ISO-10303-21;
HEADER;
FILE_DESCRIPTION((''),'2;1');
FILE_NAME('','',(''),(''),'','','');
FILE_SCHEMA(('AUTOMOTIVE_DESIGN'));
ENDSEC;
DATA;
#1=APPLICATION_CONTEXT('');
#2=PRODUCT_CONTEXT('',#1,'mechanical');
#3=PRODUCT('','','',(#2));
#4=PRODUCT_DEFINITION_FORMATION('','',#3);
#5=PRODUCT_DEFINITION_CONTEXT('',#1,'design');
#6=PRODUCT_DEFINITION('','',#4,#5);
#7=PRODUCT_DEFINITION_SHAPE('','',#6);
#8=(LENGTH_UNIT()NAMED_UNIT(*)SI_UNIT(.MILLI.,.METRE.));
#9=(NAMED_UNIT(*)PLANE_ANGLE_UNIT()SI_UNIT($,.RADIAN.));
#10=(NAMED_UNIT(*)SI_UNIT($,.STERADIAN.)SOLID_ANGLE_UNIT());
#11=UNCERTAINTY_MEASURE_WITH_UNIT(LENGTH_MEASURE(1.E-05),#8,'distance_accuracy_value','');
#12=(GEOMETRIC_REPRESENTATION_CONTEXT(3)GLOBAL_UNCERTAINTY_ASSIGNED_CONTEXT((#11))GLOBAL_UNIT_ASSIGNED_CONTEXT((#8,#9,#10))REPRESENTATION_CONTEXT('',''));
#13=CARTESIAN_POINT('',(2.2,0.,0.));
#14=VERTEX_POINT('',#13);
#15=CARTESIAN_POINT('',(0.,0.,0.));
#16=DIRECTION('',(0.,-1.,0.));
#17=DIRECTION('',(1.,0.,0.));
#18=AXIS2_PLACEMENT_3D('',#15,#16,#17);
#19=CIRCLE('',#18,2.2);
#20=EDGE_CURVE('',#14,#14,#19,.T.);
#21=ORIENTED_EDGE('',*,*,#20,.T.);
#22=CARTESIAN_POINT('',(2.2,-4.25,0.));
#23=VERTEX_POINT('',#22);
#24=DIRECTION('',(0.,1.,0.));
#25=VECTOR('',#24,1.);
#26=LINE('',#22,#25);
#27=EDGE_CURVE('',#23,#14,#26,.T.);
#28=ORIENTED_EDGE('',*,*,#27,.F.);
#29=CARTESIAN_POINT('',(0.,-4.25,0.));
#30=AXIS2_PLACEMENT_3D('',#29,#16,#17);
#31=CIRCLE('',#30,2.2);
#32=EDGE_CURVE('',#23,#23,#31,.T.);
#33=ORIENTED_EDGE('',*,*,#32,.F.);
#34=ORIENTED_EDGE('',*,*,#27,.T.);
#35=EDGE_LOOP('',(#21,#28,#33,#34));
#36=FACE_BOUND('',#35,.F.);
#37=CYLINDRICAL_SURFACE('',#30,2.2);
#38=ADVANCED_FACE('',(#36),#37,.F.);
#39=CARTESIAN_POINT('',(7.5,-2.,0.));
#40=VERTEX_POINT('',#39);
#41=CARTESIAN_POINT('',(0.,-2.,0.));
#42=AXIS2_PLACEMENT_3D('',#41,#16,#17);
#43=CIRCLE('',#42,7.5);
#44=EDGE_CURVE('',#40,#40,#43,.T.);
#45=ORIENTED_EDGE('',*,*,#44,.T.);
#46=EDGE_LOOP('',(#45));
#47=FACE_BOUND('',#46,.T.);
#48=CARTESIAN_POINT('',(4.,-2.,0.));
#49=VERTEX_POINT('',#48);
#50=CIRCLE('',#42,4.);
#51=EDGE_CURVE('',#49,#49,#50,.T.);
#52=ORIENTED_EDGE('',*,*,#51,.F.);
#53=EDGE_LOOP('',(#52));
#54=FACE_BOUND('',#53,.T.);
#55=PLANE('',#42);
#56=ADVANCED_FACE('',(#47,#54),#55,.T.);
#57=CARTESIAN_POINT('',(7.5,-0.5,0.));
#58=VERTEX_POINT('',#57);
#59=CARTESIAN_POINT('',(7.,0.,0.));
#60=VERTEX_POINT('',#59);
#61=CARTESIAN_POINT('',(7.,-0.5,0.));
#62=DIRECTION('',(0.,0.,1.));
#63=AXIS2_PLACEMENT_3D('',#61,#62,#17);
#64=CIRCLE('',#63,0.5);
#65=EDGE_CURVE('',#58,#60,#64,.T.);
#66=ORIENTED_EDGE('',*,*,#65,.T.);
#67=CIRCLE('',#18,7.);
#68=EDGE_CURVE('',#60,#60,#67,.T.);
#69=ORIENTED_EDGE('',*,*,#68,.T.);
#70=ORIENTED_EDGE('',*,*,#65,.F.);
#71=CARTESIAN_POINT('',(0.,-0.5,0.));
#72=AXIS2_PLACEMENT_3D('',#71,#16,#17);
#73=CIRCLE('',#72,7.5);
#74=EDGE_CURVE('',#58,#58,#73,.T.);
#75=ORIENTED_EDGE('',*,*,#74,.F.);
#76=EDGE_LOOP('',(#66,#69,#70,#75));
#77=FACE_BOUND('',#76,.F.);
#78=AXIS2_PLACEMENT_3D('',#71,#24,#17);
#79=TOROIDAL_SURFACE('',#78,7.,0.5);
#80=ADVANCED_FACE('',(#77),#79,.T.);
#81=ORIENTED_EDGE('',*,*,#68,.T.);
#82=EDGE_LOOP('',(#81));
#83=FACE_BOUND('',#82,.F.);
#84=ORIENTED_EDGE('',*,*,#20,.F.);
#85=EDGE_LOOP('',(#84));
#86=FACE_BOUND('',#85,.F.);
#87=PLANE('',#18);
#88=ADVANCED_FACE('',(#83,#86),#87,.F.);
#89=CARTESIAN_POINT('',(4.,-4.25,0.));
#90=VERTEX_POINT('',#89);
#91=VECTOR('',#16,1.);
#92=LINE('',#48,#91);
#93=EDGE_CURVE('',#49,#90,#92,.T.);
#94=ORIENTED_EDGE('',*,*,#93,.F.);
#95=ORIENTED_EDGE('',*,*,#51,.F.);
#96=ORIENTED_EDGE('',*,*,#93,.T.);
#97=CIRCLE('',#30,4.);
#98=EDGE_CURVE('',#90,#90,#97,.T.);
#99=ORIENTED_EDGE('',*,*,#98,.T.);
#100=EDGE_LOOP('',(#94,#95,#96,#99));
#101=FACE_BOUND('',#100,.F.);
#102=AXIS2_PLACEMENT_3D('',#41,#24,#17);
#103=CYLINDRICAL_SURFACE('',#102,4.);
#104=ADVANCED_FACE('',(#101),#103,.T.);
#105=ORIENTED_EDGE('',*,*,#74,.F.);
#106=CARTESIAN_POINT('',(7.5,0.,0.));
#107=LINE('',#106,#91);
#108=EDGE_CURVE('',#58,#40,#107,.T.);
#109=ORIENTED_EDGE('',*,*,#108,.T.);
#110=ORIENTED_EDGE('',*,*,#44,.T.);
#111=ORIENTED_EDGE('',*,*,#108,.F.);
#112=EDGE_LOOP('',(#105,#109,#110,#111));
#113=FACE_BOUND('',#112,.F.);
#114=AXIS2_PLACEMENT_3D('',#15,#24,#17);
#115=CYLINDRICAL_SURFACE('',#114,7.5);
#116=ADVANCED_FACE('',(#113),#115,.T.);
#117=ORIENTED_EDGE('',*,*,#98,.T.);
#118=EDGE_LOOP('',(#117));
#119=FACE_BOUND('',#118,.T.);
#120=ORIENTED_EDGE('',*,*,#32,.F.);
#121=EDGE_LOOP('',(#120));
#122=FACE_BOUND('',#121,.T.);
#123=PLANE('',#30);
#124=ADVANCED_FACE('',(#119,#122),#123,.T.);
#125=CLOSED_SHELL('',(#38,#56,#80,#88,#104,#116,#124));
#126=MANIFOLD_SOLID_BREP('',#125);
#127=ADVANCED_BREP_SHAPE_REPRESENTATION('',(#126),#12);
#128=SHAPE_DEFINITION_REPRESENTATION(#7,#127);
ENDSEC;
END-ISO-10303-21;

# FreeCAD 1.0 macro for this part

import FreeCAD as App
import Part
import Sketcher
from FreeCAD import Vector
Q = App.Units.Quantity


def edges_at(feature, points):
    """Names of the edges that pass closest to the given points."""
    edges = feature.Shape.Edges
    near = lambda p: min(range(len(edges)), key=lambda i: edges[i].distToShape(Part.Vertex(*p))[0])
    return sorted({f"Edge{near(p) + 1}" for p in points})

doc = App.newDocument("Part")
body = doc.addObject("PartDesign::Body", "Body")

# Sketch on XZ plane
sketch1 = body.newObject("Sketcher::SketchObject", "Sketch")
sketch1.AttachmentSupport = (doc.getObject("XZ_Plane"), [""])
sketch1.MapMode = "FlatFace"
sketch1.addGeometry(Part.Circle(Vector(0, 0, 0), Vector(0, 0, 1), 8), False)
sketch1.addConstraint(Sketcher.Constraint("Coincident", 0, 3, -1, 1))
sketch1.addConstraint(Sketcher.Constraint("Diameter", 0, Q("15 mm")))
pad1 = body.newObject("PartDesign::Pad", "Pad")
pad1.Profile = sketch1
pad1.Length = 2

# Sketch on XZ plane
sketch2 = body.newObject("Sketcher::SketchObject", "Sketch001")
sketch2.AttachmentSupport = (doc.getObject("XZ_Plane"), [""])
sketch2.MapMode = "FlatFace"
sketch2.AttachmentOffset = App.Placement(Vector(0, 0, 2), App.Rotation())
sketch2.addGeometry(Part.Circle(Vector(0, 0, 0), Vector(0, 0, 1), 4), False)
sketch2.addConstraint(Sketcher.Constraint("Coincident", 0, 3, -1, 1))
sketch2.addConstraint(Sketcher.Constraint("Diameter", 0, Q("8 mm")))
pad2 = body.newObject("PartDesign::Pad", "Pad001")
pad2.Profile = sketch2
pad2.Length = 2.25

# Sketch on XZ plane
sketch3 = body.newObject("Sketcher::SketchObject", "Sketch002")
sketch3.AttachmentSupport = (doc.getObject("XZ_Plane"), [""])
sketch3.MapMode = "FlatFace"
sketch3.AttachmentOffset = App.Placement(Vector(0, 0, 4.25), App.Rotation())
sketch3.addGeometry(Part.Circle(Vector(0, 0, 0), Vector(0, 0, 1), 2.2), False)
sketch3.addConstraint(Sketcher.Constraint("Coincident", 0, 3, -1, 1))
sketch3.addConstraint(Sketcher.Constraint("Diameter", 0, Q("4.4 mm")))
pocket1 = body.newObject("PartDesign::Pocket", "Pocket")
pocket1.Profile = sketch3
pocket1.Type = "ThroughAll"
doc.recompute()

fillet = body.newObject("PartDesign::Fillet", "Fillet")
fillet.Base = (pocket1, edges_at(pocket1, [(-7.5, 0, 0)]))
fillet.Radius = 0.5

doc.recompute()
